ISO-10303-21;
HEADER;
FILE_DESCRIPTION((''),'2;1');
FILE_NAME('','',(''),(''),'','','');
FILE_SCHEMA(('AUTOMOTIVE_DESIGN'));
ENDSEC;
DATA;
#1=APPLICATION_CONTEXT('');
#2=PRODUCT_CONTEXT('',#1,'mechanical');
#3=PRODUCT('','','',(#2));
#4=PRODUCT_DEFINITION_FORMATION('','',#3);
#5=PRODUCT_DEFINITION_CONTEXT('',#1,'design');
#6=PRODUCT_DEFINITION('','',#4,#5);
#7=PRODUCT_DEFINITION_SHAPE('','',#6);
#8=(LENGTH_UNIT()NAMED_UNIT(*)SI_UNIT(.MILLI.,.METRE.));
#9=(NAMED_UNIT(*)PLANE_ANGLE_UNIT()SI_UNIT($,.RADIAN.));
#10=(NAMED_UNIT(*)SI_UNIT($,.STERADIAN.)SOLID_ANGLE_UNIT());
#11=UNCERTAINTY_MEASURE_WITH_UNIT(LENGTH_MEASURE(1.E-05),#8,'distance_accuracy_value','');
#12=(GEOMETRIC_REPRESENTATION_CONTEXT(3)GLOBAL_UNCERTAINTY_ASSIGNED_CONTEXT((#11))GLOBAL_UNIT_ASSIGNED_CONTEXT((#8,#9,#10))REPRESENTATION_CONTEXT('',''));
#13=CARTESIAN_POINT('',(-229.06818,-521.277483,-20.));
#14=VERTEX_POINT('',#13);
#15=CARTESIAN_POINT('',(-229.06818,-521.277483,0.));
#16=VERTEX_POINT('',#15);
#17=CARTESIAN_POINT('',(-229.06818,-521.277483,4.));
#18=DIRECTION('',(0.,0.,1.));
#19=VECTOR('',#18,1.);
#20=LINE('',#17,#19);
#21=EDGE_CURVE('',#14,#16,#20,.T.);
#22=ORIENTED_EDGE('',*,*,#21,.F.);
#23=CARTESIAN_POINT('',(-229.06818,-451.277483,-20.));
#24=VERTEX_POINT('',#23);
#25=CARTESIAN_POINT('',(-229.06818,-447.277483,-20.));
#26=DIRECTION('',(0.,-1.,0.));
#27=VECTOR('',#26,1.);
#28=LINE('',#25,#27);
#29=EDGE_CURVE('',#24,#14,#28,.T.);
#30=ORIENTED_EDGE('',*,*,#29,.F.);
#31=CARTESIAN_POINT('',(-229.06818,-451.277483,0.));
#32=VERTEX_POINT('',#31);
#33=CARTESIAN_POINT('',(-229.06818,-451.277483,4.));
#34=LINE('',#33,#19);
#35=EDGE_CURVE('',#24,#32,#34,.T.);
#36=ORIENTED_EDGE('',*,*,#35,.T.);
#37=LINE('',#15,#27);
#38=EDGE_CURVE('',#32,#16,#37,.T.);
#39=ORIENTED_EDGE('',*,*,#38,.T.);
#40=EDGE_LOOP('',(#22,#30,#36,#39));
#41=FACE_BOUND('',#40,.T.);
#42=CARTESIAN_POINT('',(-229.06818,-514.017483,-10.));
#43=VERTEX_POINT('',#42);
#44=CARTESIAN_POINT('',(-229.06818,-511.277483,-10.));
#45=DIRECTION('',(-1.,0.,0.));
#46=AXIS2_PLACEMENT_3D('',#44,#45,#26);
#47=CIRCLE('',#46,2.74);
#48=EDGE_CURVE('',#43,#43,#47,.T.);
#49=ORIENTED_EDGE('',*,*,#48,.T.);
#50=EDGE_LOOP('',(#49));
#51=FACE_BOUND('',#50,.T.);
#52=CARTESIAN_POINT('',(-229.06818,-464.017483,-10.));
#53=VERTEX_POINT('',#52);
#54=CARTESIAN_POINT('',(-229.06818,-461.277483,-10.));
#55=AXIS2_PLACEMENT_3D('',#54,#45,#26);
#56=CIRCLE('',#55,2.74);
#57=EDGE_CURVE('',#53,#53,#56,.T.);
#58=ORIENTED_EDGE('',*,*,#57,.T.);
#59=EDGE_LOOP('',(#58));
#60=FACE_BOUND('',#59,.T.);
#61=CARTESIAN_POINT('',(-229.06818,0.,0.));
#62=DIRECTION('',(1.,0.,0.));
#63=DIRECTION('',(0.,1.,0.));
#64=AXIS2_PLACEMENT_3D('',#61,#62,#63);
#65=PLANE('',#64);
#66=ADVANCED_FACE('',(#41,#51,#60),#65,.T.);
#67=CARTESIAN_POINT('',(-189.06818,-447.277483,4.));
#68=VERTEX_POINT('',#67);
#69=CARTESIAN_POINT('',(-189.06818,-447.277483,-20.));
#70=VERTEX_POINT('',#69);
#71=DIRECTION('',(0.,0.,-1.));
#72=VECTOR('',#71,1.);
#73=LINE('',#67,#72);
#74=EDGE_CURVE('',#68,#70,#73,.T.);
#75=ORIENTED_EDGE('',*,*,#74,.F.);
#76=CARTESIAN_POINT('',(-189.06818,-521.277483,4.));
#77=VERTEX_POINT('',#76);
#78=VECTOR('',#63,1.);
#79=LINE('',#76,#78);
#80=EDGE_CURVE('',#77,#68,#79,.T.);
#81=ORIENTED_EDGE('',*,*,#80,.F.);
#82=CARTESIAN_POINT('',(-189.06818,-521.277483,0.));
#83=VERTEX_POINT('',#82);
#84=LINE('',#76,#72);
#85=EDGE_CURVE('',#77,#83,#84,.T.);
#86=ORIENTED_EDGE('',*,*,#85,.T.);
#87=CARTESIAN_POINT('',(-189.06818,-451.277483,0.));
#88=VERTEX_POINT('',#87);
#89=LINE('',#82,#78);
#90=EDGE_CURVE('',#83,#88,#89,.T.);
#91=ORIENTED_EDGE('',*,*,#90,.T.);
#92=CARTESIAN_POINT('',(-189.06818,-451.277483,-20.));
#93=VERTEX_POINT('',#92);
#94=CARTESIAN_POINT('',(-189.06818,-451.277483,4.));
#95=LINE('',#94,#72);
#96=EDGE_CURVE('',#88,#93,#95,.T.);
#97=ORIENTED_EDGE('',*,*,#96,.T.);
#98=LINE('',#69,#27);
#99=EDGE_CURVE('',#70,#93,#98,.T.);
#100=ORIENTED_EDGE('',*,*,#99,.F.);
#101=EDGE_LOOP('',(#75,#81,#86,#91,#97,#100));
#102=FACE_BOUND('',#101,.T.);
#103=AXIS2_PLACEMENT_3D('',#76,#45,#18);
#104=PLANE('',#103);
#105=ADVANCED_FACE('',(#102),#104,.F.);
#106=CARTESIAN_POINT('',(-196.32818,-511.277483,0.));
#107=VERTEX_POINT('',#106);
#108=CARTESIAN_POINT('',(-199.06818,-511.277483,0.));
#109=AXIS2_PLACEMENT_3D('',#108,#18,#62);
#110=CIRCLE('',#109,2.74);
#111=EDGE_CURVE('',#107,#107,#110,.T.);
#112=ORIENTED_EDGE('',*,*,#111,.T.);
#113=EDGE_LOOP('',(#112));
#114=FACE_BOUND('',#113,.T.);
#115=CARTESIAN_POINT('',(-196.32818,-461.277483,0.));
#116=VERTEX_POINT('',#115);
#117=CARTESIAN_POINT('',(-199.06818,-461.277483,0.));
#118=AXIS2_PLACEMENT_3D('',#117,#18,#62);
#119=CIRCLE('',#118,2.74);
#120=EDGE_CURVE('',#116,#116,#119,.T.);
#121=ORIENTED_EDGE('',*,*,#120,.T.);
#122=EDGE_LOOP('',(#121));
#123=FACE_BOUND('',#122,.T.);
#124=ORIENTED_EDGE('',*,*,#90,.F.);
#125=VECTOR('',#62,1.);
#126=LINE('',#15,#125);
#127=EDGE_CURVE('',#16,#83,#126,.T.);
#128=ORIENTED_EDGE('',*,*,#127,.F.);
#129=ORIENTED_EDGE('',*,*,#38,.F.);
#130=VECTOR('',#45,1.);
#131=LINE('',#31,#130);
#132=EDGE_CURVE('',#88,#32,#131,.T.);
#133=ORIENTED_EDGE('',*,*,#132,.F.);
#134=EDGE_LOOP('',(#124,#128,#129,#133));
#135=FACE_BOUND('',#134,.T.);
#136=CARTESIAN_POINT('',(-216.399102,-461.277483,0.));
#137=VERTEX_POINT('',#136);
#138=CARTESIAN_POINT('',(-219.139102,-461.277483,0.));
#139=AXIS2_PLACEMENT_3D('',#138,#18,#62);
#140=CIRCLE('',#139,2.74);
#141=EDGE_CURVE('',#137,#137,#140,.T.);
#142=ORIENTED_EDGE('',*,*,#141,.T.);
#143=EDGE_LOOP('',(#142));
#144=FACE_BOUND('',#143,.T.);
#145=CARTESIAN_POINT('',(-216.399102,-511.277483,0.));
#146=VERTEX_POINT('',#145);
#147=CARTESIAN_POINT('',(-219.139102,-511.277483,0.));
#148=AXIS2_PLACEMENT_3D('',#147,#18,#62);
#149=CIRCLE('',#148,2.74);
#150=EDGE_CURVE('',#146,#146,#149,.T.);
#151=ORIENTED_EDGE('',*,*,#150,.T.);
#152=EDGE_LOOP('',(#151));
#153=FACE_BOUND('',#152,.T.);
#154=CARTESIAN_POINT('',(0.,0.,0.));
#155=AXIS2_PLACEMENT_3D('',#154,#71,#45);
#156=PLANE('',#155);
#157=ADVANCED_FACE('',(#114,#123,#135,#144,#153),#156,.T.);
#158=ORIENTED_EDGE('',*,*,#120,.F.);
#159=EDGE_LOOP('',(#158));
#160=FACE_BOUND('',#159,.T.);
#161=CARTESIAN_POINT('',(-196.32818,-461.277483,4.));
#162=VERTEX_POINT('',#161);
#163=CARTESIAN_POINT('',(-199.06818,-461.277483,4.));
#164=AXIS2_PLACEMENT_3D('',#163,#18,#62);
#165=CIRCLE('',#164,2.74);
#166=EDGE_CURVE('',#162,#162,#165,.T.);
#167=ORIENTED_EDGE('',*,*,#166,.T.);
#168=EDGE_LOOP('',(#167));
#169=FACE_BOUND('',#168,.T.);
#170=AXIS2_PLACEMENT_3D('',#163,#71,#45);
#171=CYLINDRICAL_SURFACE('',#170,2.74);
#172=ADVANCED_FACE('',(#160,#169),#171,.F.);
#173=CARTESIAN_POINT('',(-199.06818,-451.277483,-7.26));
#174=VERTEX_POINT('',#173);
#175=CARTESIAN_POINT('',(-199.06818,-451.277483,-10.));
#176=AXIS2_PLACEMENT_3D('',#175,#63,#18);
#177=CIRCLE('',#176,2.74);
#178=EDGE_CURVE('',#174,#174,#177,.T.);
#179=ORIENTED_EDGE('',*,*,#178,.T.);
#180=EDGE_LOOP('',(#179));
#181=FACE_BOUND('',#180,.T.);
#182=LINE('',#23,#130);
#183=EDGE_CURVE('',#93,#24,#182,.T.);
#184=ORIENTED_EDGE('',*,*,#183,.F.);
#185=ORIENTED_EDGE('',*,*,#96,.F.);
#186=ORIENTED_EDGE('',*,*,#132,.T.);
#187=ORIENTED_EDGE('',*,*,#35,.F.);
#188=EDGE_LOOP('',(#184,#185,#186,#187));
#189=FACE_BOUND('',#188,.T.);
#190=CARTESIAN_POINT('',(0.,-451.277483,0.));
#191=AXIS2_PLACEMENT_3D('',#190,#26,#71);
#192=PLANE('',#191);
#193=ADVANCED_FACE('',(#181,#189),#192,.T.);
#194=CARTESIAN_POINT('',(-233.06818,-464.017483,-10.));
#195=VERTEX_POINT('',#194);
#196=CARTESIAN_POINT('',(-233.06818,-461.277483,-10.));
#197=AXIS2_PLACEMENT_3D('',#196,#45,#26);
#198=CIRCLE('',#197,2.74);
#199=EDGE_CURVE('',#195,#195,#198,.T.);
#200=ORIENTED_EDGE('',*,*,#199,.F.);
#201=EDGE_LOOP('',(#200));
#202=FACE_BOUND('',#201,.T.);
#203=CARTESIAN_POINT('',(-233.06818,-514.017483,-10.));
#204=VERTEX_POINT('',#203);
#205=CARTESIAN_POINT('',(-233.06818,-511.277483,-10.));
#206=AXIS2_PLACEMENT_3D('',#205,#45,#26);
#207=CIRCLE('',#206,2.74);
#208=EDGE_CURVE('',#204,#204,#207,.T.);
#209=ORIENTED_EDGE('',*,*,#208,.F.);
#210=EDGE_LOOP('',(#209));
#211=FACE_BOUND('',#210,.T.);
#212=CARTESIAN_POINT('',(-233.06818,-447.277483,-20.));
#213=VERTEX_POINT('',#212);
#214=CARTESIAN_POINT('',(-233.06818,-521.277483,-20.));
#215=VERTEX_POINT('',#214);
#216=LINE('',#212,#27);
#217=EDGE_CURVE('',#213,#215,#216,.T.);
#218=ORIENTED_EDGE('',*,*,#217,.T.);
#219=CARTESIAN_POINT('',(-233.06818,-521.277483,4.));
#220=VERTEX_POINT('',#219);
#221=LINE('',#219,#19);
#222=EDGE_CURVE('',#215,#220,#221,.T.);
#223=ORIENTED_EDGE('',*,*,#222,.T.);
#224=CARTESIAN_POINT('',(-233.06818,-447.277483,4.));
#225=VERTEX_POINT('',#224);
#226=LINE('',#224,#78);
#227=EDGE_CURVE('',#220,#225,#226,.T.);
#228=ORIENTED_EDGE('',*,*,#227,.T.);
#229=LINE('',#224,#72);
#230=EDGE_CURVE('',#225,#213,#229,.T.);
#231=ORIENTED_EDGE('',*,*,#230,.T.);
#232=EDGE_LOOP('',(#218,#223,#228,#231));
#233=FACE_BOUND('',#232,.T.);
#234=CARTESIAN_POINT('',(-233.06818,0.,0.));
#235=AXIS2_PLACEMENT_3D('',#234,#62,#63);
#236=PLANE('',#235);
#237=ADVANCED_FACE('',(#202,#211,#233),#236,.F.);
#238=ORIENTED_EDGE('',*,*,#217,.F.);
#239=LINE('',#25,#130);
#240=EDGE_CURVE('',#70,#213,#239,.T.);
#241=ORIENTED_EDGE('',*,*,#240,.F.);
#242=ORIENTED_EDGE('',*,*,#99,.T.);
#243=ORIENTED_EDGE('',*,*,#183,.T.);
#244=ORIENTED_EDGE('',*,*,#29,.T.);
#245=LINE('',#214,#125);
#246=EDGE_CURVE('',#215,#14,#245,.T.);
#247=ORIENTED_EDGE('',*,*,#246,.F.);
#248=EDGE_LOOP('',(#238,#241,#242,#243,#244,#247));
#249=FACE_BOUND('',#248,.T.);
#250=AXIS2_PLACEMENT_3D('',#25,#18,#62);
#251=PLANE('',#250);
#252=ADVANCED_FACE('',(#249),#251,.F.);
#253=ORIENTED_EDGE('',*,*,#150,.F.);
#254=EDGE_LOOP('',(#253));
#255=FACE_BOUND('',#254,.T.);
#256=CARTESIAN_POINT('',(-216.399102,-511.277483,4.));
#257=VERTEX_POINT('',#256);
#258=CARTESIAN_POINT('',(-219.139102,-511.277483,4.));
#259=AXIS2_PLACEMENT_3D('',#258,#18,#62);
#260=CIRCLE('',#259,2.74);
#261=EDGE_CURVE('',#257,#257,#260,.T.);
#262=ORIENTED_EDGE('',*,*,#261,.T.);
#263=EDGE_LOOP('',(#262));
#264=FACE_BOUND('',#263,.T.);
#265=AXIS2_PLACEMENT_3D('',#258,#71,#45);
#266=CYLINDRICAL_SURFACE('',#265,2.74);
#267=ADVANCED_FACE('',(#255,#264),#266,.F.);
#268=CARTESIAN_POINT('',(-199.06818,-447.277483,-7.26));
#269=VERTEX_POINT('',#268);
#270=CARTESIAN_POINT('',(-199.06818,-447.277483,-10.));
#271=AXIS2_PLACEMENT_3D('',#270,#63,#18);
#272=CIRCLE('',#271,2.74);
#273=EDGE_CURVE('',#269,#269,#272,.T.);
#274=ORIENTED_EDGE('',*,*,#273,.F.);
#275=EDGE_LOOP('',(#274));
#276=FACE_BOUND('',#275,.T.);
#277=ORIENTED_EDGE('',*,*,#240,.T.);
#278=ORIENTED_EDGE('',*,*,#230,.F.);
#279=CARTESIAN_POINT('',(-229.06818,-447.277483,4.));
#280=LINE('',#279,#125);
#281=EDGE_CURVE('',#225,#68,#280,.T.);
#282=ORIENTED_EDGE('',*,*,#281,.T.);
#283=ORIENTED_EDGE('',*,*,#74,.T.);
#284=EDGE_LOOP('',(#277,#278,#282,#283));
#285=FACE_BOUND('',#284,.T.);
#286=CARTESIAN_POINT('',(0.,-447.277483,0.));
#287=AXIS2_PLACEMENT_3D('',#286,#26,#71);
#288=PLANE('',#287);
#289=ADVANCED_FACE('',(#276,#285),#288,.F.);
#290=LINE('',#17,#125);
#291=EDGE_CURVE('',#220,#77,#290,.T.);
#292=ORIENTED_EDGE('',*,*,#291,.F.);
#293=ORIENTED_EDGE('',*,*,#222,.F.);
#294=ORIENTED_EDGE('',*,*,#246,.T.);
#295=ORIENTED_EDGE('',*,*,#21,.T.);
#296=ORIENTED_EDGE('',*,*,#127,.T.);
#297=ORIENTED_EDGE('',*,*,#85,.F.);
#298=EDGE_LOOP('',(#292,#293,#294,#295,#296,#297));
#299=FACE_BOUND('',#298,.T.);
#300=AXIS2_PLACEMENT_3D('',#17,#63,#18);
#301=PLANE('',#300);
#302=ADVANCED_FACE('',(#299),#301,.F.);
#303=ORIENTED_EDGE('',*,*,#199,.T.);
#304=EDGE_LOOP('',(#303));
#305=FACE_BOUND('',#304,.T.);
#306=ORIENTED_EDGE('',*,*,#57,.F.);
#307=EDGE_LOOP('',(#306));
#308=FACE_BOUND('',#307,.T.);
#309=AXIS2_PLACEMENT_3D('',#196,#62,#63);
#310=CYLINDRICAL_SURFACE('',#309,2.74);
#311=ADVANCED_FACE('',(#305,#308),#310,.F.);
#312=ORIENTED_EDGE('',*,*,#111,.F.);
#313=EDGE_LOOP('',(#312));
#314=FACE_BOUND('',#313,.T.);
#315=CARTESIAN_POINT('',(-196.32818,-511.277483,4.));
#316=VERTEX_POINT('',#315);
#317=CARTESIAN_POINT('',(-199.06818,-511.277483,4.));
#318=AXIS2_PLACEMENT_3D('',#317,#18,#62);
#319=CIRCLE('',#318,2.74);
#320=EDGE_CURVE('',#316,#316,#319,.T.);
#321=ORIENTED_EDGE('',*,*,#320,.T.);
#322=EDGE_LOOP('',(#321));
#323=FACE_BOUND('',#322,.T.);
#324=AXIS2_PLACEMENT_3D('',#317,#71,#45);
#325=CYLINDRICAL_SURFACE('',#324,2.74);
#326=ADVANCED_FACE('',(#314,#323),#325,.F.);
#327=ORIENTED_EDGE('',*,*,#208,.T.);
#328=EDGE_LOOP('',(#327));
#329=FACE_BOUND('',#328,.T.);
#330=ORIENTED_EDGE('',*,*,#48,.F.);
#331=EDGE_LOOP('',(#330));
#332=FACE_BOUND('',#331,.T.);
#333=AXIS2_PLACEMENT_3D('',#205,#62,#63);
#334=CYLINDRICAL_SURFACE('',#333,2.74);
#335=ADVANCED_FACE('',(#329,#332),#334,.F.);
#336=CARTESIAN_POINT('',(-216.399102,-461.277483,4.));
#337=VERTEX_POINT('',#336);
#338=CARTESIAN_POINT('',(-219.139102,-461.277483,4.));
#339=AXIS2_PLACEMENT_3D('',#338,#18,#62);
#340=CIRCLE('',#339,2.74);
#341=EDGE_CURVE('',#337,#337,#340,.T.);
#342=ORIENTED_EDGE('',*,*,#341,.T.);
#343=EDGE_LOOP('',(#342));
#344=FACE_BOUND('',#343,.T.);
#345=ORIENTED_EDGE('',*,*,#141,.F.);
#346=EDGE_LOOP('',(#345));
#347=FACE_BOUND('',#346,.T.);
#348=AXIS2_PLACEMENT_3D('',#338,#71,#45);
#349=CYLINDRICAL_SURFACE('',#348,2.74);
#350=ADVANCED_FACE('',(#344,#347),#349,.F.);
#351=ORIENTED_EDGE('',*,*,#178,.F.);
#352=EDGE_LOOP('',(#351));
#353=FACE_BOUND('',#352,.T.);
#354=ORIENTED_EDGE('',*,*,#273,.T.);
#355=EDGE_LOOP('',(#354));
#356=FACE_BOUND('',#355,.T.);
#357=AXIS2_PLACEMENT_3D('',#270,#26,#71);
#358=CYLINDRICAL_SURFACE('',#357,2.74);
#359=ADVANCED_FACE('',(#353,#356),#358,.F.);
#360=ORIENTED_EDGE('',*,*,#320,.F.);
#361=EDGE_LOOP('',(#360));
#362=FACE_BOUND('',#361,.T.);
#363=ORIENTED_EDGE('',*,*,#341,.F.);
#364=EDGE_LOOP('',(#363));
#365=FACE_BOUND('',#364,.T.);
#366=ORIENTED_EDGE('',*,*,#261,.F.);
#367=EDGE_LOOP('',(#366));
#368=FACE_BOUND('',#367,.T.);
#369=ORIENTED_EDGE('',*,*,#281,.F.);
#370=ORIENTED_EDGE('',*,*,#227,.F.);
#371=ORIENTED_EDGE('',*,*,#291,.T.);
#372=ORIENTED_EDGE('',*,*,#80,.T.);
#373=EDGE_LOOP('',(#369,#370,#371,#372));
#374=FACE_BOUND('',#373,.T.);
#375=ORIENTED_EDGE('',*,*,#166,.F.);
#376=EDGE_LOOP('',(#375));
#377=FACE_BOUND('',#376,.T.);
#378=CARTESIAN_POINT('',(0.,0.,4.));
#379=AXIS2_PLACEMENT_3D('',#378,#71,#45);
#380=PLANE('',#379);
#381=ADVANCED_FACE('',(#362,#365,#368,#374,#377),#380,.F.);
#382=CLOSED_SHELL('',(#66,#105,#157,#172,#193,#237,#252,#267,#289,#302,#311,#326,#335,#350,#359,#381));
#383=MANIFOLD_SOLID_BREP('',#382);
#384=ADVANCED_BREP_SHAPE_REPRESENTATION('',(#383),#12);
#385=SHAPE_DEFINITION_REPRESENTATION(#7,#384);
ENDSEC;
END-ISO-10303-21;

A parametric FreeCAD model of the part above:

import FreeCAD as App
import Part
import Sketcher
Q = App.Units.Quantity


def add_polygon(sketch, points):
    """Adds a closed chain of lines whose ends are joined by coincident constraints."""
    first, n = sketch.GeometryCount, len(points)
    for a, b in zip(points, points[1:] + points[:1]):
        sketch.addGeometry(Part.LineSegment(App.Vector(*a, 0), App.Vector(*b, 0)), False)
    for i in range(n):
        sketch.addConstraint(Sketcher.Constraint("Coincident", first + i, 2, first + (i + 1) % n, 1))

doc = App.newDocument("Part")
body = doc.addObject("PartDesign::Body", "Body")

sketch1 = doc.addObject("Sketcher::SketchObject", "Sketch")
body.addObject(sketch1)
sketch1.AttachmentSupport = (doc.XY_Plane, [""])
sketch1.MapMode = "FlatFace"
add_polygon(sketch1, [(-229.1, -451.3), (-229.1, -521.3), (-189.1, -521.3), (-189.1, -451.3)])
sketch1.addGeometry(Part.Circle(App.Vector(-219.1, -511.3, 0), App.Vector(0, 0, 1), 2.7), False)
sketch1.addGeometry(Part.Circle(App.Vector(-199.1, -511.3, 0), App.Vector(0, 0, 1), 2.7), False)
sketch1.addGeometry(Part.Circle(App.Vector(-219.1, -461.3, 0), App.Vector(0, 0, 1), 2.7), False)
sketch1.addGeometry(Part.Circle(App.Vector(-199.1, -461.3, 0), App.Vector(0, 0, 1), 2.7), False)
sketch1.addConstraint([
    Sketcher.Constraint("Vertical", 0),
    Sketcher.Constraint("Horizontal", 1),
    Sketcher.Constraint("Vertical", 2),
    Sketcher.Constraint("Horizontal", 3),
    Sketcher.Constraint("Equal", 4, 5),
    Sketcher.Constraint("Equal", 5, 6),
    Sketcher.Constraint("Equal", 6, 7),
    Sketcher.Constraint("Horizontal", 4, 3, 5, 3),
    Sketcher.Constraint("Horizontal", 6, 3, 7, 3),
    Sketcher.Constraint("Vertical", 4, 3, 6, 3),
    Sketcher.Constraint("Vertical", 5, 3, 7, 3),
    Sketcher.Constraint("Diameter", 4, Q("5.48 mm")),
    Sketcher.Constraint("DistanceX", 1, 1, 1, 2, Q("40 mm")),
    Sketcher.Constraint("DistanceY", 0, 2, 0, 1, Q("70 mm")),
    Sketcher.Constraint("DistanceY", 4, 3, 6, 3, Q("50 mm")),
    Sketcher.Constraint("DistanceY", 0, 2, 4, 3, Q("10 mm")),
    Sketcher.Constraint("DistanceX", 0, 2, 5, 3, Q("30 mm")),
    Sketcher.Constraint("DistanceX", 4, 3, -1, 1, Q("219.139102 mm")),
    Sketcher.Constraint("DistanceX", 5, 3, -1, 1, Q("199.06818 mm")),
    Sketcher.Constraint("DistanceY", 4, 3, -1, 1, Q("511.277483 mm")),
])
pad1 = doc.addObject("PartDesign::Pad", "Pad")
body.addObject(pad1)
pad1.Profile = sketch1
pad1.Length = 4

sketch2 = doc.addObject("Sketcher::SketchObject", "Sketch001")
body.addObject(sketch2)
sketch2.AttachmentSupport = (doc.XZ_Plane, [""])
sketch2.MapMode = "FlatFace"
sketch2.AttachmentOffset = App.Placement(App.Vector(0, 0, 451.277483), App.Rotation())
add_polygon(sketch2, [(-229.1, -20), (-229.1, 4), (-189.1, 4), (-189.1, -20)])
sketch2.addGeometry(Part.Circle(App.Vector(-199.1, -10, 0), App.Vector(0, 0, 1), 2.7), False)
sketch2.addConstraint([
    Sketcher.Constraint("Vertical", 0),
    Sketcher.Constraint("Horizontal", 1),
    Sketcher.Constraint("Vertical", 2),
    Sketcher.Constraint("Horizontal", 3),
    Sketcher.Constraint("Diameter", 4, Q("5.48 mm")),
    Sketcher.Constraint("DistanceX", 1, 1, 1, 2, Q("40 mm")),
    Sketcher.Constraint("DistanceY", 0, 1, 0, 2, Q("24 mm")),
    Sketcher.Constraint("DistanceY", 4, 3, -1, 1, Q("10 mm")),
    Sketcher.Constraint("DistanceY", -1, 1, 0, 2, Q("4 mm")),
    Sketcher.Constraint("DistanceX", 0, 2, 4, 3, Q("30 mm")),
    Sketcher.Constraint("DistanceX", 4, 3, -1, 1, Q("199.06818 mm")),
])
pad2 = doc.addObject("PartDesign::Pad", "Pad001")
body.addObject(pad2)
pad2.Profile = sketch2
pad2.Length = 4
pad2.Reversed = True

sketch3 = doc.addObject("Sketcher::SketchObject", "Sketch002")
body.addObject(sketch3)
sketch3.AttachmentSupport = (doc.YZ_Plane, [""])
sketch3.MapMode = "FlatFace"
sketch3.AttachmentOffset = App.Placement(App.Vector(0, 0, -229.06818), App.Rotation())
add_polygon(sketch3, [(-447.3, -20), (-521.3, -20), (-521.3, 4), (-447.3, 4)])
sketch3.addGeometry(Part.Circle(App.Vector(-511.3, -10, 0), App.Vector(0, 0, 1), 2.7), False)
sketch3.addGeometry(Part.Circle(App.Vector(-461.3, -10, 0), App.Vector(0, 0, 1), 2.7), False)
sketch3.addConstraint([
    Sketcher.Constraint("Horizontal", 0),
    Sketcher.Constraint("Vertical", 1),
    Sketcher.Constraint("Horizontal", 2),
    Sketcher.Constraint("Vertical", 3),
    Sketcher.Constraint("Equal", 4, 5),
    Sketcher.Constraint("Horizontal", 4, 3, 5, 3),
    Sketcher.Constraint("Diameter", 4, Q("5.48 mm")),
    Sketcher.Constraint("DistanceX", 0, 2, 0, 1, Q("74 mm")),
    Sketcher.Constraint("DistanceY", 1, 1, 1, 2, Q("24 mm")),
    Sketcher.Constraint("DistanceY", 4, 3, -1, 1, Q("10 mm")),
    Sketcher.Constraint("DistanceY", 0, 2, -1, 1, Q("20 mm")),
    Sketcher.Constraint("DistanceX", 4, 3, 5, 3, Q("50 mm")),
    Sketcher.Constraint("DistanceX", 0, 2, 4, 3, Q("10 mm")),
    Sketcher.Constraint("DistanceX", 4, 3, -1, 1, Q("511.277483 mm")),
])
pad3 = doc.addObject("PartDesign::Pad", "Pad002")
body.addObject(pad3)
pad3.Profile = sketch3
pad3.Length = 4
pad3.Reversed = True

doc.recompute()
